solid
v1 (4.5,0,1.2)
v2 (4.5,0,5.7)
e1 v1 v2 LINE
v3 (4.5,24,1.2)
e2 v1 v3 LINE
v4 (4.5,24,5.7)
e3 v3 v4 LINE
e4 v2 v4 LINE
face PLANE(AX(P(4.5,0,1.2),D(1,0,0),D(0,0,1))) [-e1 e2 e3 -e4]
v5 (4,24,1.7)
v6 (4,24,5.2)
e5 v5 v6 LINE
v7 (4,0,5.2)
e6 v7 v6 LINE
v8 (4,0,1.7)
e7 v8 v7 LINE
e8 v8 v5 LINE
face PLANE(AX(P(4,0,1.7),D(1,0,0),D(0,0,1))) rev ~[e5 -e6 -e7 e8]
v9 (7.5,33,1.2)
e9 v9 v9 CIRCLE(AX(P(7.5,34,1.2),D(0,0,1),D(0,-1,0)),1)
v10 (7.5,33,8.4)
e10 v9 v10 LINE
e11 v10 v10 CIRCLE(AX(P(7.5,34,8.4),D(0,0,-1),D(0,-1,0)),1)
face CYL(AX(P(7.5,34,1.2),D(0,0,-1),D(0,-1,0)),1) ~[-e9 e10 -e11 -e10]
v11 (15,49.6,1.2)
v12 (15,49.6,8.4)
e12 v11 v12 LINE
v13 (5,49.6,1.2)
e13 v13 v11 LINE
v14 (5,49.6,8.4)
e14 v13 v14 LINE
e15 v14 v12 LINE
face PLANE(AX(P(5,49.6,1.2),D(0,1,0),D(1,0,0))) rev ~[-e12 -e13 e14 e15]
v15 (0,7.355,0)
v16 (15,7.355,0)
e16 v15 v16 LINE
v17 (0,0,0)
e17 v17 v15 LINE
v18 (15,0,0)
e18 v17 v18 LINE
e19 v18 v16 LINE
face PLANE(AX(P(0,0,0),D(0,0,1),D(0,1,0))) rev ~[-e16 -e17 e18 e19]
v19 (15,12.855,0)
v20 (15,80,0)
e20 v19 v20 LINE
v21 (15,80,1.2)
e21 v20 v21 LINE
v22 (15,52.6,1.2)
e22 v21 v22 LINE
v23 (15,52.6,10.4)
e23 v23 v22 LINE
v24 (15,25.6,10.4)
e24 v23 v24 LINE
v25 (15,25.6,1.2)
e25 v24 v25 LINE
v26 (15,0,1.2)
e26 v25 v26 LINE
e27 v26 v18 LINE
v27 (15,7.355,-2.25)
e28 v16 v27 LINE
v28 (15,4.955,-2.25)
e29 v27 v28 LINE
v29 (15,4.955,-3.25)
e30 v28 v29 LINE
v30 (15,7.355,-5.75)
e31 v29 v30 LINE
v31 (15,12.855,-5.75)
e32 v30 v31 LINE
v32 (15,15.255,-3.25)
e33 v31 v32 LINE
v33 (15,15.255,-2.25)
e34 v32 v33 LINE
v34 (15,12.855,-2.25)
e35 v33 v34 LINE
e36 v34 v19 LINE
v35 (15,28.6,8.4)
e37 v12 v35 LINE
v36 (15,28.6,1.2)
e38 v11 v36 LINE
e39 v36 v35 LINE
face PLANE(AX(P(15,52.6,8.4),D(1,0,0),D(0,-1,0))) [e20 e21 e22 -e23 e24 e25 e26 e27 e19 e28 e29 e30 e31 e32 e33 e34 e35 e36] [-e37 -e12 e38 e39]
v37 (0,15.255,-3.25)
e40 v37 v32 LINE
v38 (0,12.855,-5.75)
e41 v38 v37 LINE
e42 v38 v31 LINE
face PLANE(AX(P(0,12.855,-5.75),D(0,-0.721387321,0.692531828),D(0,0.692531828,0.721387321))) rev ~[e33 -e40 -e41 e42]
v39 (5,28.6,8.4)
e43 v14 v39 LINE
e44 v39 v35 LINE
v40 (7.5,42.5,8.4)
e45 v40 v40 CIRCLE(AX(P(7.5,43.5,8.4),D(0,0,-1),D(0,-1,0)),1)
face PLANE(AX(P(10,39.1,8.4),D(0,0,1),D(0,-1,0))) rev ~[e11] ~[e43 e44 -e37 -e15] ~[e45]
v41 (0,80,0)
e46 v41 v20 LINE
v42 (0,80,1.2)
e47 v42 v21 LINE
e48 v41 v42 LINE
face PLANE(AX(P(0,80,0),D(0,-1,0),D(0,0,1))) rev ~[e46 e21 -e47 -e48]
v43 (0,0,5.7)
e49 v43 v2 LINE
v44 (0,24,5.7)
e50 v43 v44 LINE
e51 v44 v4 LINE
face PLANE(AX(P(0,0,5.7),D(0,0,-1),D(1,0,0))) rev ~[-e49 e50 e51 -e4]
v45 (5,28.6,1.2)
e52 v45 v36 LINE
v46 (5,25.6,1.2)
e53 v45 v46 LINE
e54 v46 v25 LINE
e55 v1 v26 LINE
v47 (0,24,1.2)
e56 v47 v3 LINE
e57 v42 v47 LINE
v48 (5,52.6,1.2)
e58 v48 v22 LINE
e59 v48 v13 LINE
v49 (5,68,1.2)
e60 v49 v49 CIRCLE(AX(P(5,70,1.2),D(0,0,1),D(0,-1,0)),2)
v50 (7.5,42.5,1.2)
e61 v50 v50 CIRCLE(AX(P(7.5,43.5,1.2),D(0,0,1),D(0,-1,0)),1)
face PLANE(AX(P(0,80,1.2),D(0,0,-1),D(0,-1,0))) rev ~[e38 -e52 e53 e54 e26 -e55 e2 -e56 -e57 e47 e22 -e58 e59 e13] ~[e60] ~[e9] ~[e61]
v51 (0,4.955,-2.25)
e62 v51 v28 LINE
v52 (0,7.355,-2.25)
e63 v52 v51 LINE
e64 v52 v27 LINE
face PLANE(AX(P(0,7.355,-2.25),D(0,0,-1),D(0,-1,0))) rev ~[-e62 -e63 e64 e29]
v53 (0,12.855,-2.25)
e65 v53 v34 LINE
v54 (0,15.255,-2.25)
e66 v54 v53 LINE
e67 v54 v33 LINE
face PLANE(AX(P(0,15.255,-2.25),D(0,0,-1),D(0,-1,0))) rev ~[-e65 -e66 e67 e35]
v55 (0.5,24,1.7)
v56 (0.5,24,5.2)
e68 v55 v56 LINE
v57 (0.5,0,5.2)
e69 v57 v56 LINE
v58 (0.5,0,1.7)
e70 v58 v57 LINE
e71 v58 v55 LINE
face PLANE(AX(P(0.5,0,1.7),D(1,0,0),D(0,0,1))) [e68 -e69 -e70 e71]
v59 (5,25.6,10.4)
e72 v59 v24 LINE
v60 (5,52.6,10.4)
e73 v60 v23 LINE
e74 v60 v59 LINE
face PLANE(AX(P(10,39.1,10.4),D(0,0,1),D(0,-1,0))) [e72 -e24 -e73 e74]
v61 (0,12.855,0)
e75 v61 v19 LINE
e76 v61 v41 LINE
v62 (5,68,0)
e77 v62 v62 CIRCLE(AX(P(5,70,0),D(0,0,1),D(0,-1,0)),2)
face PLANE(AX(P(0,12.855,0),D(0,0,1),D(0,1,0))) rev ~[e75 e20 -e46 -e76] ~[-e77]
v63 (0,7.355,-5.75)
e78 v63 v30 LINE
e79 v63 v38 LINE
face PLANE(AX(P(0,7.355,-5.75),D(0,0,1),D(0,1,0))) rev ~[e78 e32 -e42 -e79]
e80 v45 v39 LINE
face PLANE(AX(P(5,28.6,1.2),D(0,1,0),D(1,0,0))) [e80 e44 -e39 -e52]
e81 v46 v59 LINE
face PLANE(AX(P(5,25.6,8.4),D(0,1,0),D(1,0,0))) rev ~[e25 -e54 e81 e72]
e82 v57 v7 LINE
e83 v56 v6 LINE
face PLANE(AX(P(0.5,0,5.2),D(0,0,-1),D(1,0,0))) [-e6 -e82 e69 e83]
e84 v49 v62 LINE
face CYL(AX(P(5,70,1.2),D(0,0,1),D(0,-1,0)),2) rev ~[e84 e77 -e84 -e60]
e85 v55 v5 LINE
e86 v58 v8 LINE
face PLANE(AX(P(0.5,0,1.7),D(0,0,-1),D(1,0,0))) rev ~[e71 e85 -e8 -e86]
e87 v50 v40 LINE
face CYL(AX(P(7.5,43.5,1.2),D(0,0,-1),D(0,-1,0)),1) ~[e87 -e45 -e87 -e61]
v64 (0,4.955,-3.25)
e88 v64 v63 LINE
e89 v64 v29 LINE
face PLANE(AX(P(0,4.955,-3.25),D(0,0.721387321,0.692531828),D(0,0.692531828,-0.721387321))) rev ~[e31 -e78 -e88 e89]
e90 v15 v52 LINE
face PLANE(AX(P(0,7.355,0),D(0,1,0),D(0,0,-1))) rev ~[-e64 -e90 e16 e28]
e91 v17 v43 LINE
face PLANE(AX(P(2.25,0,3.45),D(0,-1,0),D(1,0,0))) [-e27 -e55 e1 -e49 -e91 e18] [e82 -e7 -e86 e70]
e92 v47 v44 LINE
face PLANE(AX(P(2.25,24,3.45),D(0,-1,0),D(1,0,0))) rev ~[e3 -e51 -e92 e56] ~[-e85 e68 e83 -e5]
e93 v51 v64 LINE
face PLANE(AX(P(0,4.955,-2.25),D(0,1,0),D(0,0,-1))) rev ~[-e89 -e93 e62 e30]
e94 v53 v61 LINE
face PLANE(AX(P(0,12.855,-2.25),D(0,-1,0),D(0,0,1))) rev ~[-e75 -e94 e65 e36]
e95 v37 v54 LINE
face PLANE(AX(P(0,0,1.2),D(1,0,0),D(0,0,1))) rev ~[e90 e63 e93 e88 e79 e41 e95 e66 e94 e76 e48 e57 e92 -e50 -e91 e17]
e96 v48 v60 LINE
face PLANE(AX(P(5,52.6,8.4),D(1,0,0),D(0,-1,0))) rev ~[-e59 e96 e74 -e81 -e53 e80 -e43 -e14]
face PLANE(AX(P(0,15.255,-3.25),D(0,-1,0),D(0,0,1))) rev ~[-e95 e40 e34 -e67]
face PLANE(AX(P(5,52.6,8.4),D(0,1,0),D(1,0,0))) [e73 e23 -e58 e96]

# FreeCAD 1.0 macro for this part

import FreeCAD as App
import Part
import Sketcher
from FreeCAD import Vector


def add_polygon(sketch, points):
    """Adds a closed chain of lines whose ends are joined by coincident constraints."""
    first, n = sketch.GeometryCount, len(points)
    for a, b in zip(points, points[1:] + points[:1]):
        sketch.addGeometry(Part.LineSegment(App.Vector(*a, 0), App.Vector(*b, 0)), False)
    for i in range(n):
        sketch.addConstraint(Sketcher.Constraint("Coincident", first + i, 2, first + (i + 1) % n, 1))

doc = App.newDocument("Part")
params = doc.addObject("Spreadsheet::Sheet", "Params")
for row, (alias, value) in enumerate([
    ("sketch1_width", "80 mm"),
    ("sketch1_height", "1 mm"),
    ("sketch1_width2", "2.4 mm"),
    ("sketch1_width3", "5.5 mm"),
    ("sketch1_height2", "1.2 mm"),
    ("pad1_length", "15 mm"),
    ("sketch2_diameter", "4 mm"),
    ("sketch3_diameter", "2 mm"),
    ("pad2_length", "9 mm"),
    ("sketch4_width", "4.5 mm"),
    ("sketch4_width2", "3.5 mm"),
    ("pad3_length", "24 mm"),
    ("sketch5_width", "10 mm"),
    ("sketch5_height", "3 mm"),
    ("pad4_length", "7.2 mm"),
    ("sketch6_width", "10 mm"),
    ("sketch6_height", "27 mm"),
    ("pad5_length", "2 mm"),
], start=1):
    params.set(f"A{row}", alias)
    params.set(f"B{row}", "=" + value)
    params.setAlias(f"B{row}", alias)

body = doc.addObject("PartDesign::Body", "Body")

# Sketch on YZ plane
sketch1 = body.newObject("Sketcher::SketchObject", "Sketch")
sketch1.AttachmentSupport = (doc.getObject("YZ_Plane"), [""])
sketch1.MapMode = "FlatFace"
add_polygon(sketch1, [(0, 0), (7.4, 0), (7.4, -2.2), (5, -2.2), (5, -3.2), (7.4, -5.8), (12.9, -5.8), (15.3, -3.2), (15.3, -2.2), (12.9, -2.2), (12.9, 0), (80, 0), (80, 1.2), (0, 1.2)])  # lines 0-13
sketch1.addConstraint(Sketcher.Constraint("Horizontal", 0))
sketch1.addConstraint(Sketcher.Constraint("Vertical", 1))
sketch1.addConstraint(Sketcher.Constraint("Horizontal", 2))
sketch1.addConstraint(Sketcher.Constraint("Vertical", 3))
sketch1.addConstraint(Sketcher.Constraint("Horizontal", 5))
sketch1.addConstraint(Sketcher.Constraint("Vertical", 7))
sketch1.addConstraint(Sketcher.Constraint("Horizontal", 8))
sketch1.addConstraint(Sketcher.Constraint("Vertical", 9))
sketch1.addConstraint(Sketcher.Constraint("Horizontal", 10))
sketch1.addConstraint(Sketcher.Constraint("Vertical", 11))
sketch1.addConstraint(Sketcher.Constraint("Horizontal", 12))
sketch1.addConstraint(Sketcher.Constraint("Vertical", 13))
sketch1.addConstraint(Sketcher.Constraint("Coincident", 13, 2, -1, 1))
sketch1.addConstraint(Sketcher.Constraint("PointOnObject", 9, 2, -1))
sketch1.addConstraint(Sketcher.Constraint("Horizontal", 3, 2, 6, 2))
sketch1.addConstraint(Sketcher.Constraint("Horizontal", 2, 2, 7, 2))
sketch1.addConstraint(Sketcher.Constraint("Vertical", 1, 2, 4, 2))
sketch1.addConstraint(Sketcher.Constraint("Vertical", 5, 2, 8, 2))
sketch1.addConstraint(Sketcher.Constraint("Equal", 2, 8))
sketch1.addConstraint(Sketcher.Constraint("DistanceX", 12, 2, 12, 1, 80.0))
sketch1.addConstraint(Sketcher.Constraint("DistanceY", 3, 2, 3, 1, 1.0))
sketch1.addConstraint(Sketcher.Constraint("DistanceX", 2, 2, 2, 1, 2.4))
sketch1.addConstraint(Sketcher.Constraint("DistanceX", 5, 1, 5, 2, 5.5))
sketch1.addConstraint(Sketcher.Constraint("DistanceY", 11, 1, 11, 2, 1.2))
sketch1.addConstraint(Sketcher.Constraint("DistanceY", 1, 2, 1, 1, 2.25))
sketch1.addConstraint(Sketcher.Constraint("DistanceY", 4, 2, 3, 2, 2.5))
sketch1.addConstraint(Sketcher.Constraint("DistanceX", 0, 1, 0, 2, 7.355))
sketch1.setExpression("Constraints[33]", "Params.sketch1_width")
sketch1.setExpression("Constraints[34]", "Params.sketch1_height")
sketch1.setExpression("Constraints[35]", "Params.sketch1_width2")
sketch1.setExpression("Constraints[36]", "Params.sketch1_width3")
sketch1.setExpression("Constraints[37]", "Params.sketch1_height2")
pad1 = body.newObject("PartDesign::Pad", "Pad")
pad1.Profile = sketch1
pad1.setExpression("Length", "Params.pad1_length")

# Sketch on XY plane
sketch2 = body.newObject("Sketcher::SketchObject", "Sketch001")
sketch2.AttachmentSupport = (doc.getObject("XY_Plane"), [""])
sketch2.MapMode = "FlatFace"
sketch2.AttachmentOffset = App.Placement(Vector(0, 0, 1.2), App.Rotation())
sketch2.addGeometry(Part.Circle(Vector(5, 70, 0), Vector(0, 0, 1), 2), False)
sketch2.addConstraint(Sketcher.Constraint("Diameter", 0, 4.0))
sketch2.addConstraint(Sketcher.Constraint("DistanceX", -1, 1, 0, 3, 5.0))
sketch2.addConstraint(Sketcher.Constraint("DistanceY", -1, 1, 0, 3, 70.0))
sketch2.setExpression("Constraints[0]", "Params.sketch2_diameter")
pocket1 = body.newObject("PartDesign::Pocket", "Pocket")
pocket1.Profile = sketch2
pocket1.Type = "ThroughAll"

# Sketch on XY plane
sketch3 = body.newObject("Sketcher::SketchObject", "Sketch002")
sketch3.AttachmentSupport = (doc.getObject("XY_Plane"), [""])
sketch3.MapMode = "FlatFace"
sketch3.AttachmentOffset = App.Placement(Vector(0, 0, 1.2), App.Rotation())
sketch3.addGeometry(Part.Circle(Vector(7.5, 43.5, 0), Vector(0, 0, 1), 1), False)
sketch3.addGeometry(Part.Circle(Vector(7.5, 34, 0), Vector(0, 0, 1), 1), False)
sketch3.addConstraint(Sketcher.Constraint("Equal", 0, 1))
sketch3.addConstraint(Sketcher.Constraint("Vertical", 0, 3, 1, 3))
sketch3.addConstraint(Sketcher.Constraint("Diameter", 0, 2.0))
sketch3.addConstraint(Sketcher.Constraint("DistanceY", -1, 1, 1, 3, 34.0))
sketch3.addConstraint(Sketcher.Constraint("DistanceX", -1, 1, 0, 3, 7.5))
sketch3.addConstraint(Sketcher.Constraint("DistanceY", -1, 1, 0, 3, 43.5))
sketch3.setExpression("Constraints[2]", "Params.sketch3_diameter")
pad2 = body.newObject("PartDesign::Pad", "Pad001")
pad2.Profile = sketch3
pad2.setExpression("Length", "Params.pad2_length")

# Sketch on XZ plane
sketch4 = body.newObject("Sketcher::SketchObject", "Sketch003")
sketch4.AttachmentSupport = (doc.getObject("XZ_Plane"), [""])
sketch4.MapMode = "FlatFace"
add_polygon(sketch4, [(0, 5.7), (0, 1.2), (4.5, 1.2), (4.5, 5.7)])  # lines 0-3
add_polygon(sketch4, [(4, 1.7), (0.5, 1.7), (0.5, 5.2), (4, 5.2)])  # lines 4-7
sketch4.addConstraint(Sketcher.Constraint("Vertical", 0))
sketch4.addConstraint(Sketcher.Constraint("Horizontal", 1))
sketch4.addConstraint(Sketcher.Constraint("Vertical", 2))
sketch4.addConstraint(Sketcher.Constraint("Horizontal", 3))
sketch4.addConstraint(Sketcher.Constraint("Horizontal", 4))
sketch4.addConstraint(Sketcher.Constraint("Vertical", 5))
sketch4.addConstraint(Sketcher.Constraint("Horizontal", 6))
sketch4.addConstraint(Sketcher.Constraint("Vertical", 7))
sketch4.addConstraint(Sketcher.Constraint("PointOnObject", 0, 2, -2))
sketch4.addConstraint(Sketcher.Constraint("Equal", 3, 0))
sketch4.addConstraint(Sketcher.Constraint("Equal", 6, 5))
sketch4.addConstraint(Sketcher.Constraint("DistanceX", 1, 1, 1, 2, 4.5))
sketch4.addConstraint(Sketcher.Constraint("DistanceX", 4, 2, 4, 1, 3.5))
sketch4.addConstraint(Sketcher.Constraint("DistanceX", -1, 1, 6, 2, 4.0))
sketch4.addConstraint(Sketcher.Constraint("DistanceY", 4, 2, 3, 2, 4.0))
sketch4.addConstraint(Sketcher.Constraint("DistanceY", -1, 1, 0, 2, 1.2))
sketch4.setExpression("Constraints[19]", "Params.sketch4_width")
sketch4.setExpression("Constraints[20]", "Params.sketch4_width2")
pad3 = body.newObject("PartDesign::Pad", "Pad002")
pad3.Profile = sketch4
pad3.setExpression("Length", "Params.pad3_length")
pad3.Reversed = True

# Sketch on XY plane
sketch5 = body.newObject("Sketcher::SketchObject", "Sketch004")
sketch5.AttachmentSupport = (doc.getObject("XY_Plane"), [""])
sketch5.MapMode = "FlatFace"
sketch5.AttachmentOffset = App.Placement(Vector(0, 0, 1.2), App.Rotation())
add_polygon(sketch5, [(15, 52.6), (5, 52.6), (5, 49.6), (15, 49.6)])  # lines 0-3
add_polygon(sketch5, [(15, 28.6), (5, 28.6), (5, 25.6), (15, 25.6)])  # lines 4-7
sketch5.addConstraint(Sketcher.Constraint("Horizontal", 0))
sketch5.addConstraint(Sketcher.Constraint("Vertical", 1))
sketch5.addConstraint(Sketcher.Constraint("Horizontal", 2))
sketch5.addConstraint(Sketcher.Constraint("Vertical", 3))
sketch5.addConstraint(Sketcher.Constraint("Horizontal", 4))
sketch5.addConstraint(Sketcher.Constraint("Vertical", 5))
sketch5.addConstraint(Sketcher.Constraint("Horizontal", 6))
sketch5.addConstraint(Sketcher.Constraint("Vertical", 7))
sketch5.addConstraint(Sketcher.Constraint("Vertical", 1, 2, 4, 2))
sketch5.addConstraint(Sketcher.Constraint("Vertical", 3, 2, 6, 2))
sketch5.addConstraint(Sketcher.Constraint("Equal", 3, 5))
sketch5.addConstraint(Sketcher.Constraint("DistanceX", 0, 2, 0, 1, 10.0))
sketch5.addConstraint(Sketcher.Constraint("DistanceY", 1, 2, 1, 1, 3.0))
sketch5.addConstraint(Sketcher.Constraint("DistanceX", -1, 1, 0, 2, 5.0))
sketch5.addConstraint(Sketcher.Constraint("DistanceY", 4, 2, 1, 2, 21.0))
sketch5.addConstraint(Sketcher.Constraint("DistanceY", -1, 1, 0, 2, 52.6))
sketch5.setExpression("Constraints[19]", "Params.sketch5_width")
sketch5.setExpression("Constraints[20]", "Params.sketch5_height")
pad4 = body.newObject("PartDesign::Pad", "Pad003")
pad4.Profile = sketch5
pad4.setExpression("Length", "Params.pad4_length")

# Sketch on XY plane
sketch6 = body.newObject("Sketcher::SketchObject", "Sketch005")
sketch6.AttachmentSupport = (doc.getObject("XY_Plane"), [""])
sketch6.MapMode = "FlatFace"
sketch6.AttachmentOffset = App.Placement(Vector(0, 0, 8.4), App.Rotation())
add_polygon(sketch6, [(15, 53), (5, 53), (5, 26), (15, 26)])  # lines 0-3
sketch6.addConstraint(Sketcher.Constraint("Horizontal", 0))
sketch6.addConstraint(Sketcher.Constraint("Vertical", 1))
sketch6.addConstraint(Sketcher.Constraint("Horizontal", 2))
sketch6.addConstraint(Sketcher.Constraint("Vertical", 3))
sketch6.addConstraint(Sketcher.Constraint("DistanceX", 0, 2, 0, 1, 10.0))
sketch6.addConstraint(Sketcher.Constraint("DistanceY", 1, 2, 1, 1, 27.0))
sketch6.addConstraint(Sketcher.Constraint("DistanceX", -1, 1, 0, 2, 5.0))
sketch6.addConstraint(Sketcher.Constraint("DistanceY", -1, 1, 0, 2, 52.6))
sketch6.setExpression("Constraints[8]", "Params.sketch6_width")
sketch6.setExpression("Constraints[9]", "Params.sketch6_height")
pad5 = body.newObject("PartDesign::Pad", "Pad004")
pad5.Profile = sketch6
pad5.setExpression("Length", "Params.pad5_length")

doc.recompute()
